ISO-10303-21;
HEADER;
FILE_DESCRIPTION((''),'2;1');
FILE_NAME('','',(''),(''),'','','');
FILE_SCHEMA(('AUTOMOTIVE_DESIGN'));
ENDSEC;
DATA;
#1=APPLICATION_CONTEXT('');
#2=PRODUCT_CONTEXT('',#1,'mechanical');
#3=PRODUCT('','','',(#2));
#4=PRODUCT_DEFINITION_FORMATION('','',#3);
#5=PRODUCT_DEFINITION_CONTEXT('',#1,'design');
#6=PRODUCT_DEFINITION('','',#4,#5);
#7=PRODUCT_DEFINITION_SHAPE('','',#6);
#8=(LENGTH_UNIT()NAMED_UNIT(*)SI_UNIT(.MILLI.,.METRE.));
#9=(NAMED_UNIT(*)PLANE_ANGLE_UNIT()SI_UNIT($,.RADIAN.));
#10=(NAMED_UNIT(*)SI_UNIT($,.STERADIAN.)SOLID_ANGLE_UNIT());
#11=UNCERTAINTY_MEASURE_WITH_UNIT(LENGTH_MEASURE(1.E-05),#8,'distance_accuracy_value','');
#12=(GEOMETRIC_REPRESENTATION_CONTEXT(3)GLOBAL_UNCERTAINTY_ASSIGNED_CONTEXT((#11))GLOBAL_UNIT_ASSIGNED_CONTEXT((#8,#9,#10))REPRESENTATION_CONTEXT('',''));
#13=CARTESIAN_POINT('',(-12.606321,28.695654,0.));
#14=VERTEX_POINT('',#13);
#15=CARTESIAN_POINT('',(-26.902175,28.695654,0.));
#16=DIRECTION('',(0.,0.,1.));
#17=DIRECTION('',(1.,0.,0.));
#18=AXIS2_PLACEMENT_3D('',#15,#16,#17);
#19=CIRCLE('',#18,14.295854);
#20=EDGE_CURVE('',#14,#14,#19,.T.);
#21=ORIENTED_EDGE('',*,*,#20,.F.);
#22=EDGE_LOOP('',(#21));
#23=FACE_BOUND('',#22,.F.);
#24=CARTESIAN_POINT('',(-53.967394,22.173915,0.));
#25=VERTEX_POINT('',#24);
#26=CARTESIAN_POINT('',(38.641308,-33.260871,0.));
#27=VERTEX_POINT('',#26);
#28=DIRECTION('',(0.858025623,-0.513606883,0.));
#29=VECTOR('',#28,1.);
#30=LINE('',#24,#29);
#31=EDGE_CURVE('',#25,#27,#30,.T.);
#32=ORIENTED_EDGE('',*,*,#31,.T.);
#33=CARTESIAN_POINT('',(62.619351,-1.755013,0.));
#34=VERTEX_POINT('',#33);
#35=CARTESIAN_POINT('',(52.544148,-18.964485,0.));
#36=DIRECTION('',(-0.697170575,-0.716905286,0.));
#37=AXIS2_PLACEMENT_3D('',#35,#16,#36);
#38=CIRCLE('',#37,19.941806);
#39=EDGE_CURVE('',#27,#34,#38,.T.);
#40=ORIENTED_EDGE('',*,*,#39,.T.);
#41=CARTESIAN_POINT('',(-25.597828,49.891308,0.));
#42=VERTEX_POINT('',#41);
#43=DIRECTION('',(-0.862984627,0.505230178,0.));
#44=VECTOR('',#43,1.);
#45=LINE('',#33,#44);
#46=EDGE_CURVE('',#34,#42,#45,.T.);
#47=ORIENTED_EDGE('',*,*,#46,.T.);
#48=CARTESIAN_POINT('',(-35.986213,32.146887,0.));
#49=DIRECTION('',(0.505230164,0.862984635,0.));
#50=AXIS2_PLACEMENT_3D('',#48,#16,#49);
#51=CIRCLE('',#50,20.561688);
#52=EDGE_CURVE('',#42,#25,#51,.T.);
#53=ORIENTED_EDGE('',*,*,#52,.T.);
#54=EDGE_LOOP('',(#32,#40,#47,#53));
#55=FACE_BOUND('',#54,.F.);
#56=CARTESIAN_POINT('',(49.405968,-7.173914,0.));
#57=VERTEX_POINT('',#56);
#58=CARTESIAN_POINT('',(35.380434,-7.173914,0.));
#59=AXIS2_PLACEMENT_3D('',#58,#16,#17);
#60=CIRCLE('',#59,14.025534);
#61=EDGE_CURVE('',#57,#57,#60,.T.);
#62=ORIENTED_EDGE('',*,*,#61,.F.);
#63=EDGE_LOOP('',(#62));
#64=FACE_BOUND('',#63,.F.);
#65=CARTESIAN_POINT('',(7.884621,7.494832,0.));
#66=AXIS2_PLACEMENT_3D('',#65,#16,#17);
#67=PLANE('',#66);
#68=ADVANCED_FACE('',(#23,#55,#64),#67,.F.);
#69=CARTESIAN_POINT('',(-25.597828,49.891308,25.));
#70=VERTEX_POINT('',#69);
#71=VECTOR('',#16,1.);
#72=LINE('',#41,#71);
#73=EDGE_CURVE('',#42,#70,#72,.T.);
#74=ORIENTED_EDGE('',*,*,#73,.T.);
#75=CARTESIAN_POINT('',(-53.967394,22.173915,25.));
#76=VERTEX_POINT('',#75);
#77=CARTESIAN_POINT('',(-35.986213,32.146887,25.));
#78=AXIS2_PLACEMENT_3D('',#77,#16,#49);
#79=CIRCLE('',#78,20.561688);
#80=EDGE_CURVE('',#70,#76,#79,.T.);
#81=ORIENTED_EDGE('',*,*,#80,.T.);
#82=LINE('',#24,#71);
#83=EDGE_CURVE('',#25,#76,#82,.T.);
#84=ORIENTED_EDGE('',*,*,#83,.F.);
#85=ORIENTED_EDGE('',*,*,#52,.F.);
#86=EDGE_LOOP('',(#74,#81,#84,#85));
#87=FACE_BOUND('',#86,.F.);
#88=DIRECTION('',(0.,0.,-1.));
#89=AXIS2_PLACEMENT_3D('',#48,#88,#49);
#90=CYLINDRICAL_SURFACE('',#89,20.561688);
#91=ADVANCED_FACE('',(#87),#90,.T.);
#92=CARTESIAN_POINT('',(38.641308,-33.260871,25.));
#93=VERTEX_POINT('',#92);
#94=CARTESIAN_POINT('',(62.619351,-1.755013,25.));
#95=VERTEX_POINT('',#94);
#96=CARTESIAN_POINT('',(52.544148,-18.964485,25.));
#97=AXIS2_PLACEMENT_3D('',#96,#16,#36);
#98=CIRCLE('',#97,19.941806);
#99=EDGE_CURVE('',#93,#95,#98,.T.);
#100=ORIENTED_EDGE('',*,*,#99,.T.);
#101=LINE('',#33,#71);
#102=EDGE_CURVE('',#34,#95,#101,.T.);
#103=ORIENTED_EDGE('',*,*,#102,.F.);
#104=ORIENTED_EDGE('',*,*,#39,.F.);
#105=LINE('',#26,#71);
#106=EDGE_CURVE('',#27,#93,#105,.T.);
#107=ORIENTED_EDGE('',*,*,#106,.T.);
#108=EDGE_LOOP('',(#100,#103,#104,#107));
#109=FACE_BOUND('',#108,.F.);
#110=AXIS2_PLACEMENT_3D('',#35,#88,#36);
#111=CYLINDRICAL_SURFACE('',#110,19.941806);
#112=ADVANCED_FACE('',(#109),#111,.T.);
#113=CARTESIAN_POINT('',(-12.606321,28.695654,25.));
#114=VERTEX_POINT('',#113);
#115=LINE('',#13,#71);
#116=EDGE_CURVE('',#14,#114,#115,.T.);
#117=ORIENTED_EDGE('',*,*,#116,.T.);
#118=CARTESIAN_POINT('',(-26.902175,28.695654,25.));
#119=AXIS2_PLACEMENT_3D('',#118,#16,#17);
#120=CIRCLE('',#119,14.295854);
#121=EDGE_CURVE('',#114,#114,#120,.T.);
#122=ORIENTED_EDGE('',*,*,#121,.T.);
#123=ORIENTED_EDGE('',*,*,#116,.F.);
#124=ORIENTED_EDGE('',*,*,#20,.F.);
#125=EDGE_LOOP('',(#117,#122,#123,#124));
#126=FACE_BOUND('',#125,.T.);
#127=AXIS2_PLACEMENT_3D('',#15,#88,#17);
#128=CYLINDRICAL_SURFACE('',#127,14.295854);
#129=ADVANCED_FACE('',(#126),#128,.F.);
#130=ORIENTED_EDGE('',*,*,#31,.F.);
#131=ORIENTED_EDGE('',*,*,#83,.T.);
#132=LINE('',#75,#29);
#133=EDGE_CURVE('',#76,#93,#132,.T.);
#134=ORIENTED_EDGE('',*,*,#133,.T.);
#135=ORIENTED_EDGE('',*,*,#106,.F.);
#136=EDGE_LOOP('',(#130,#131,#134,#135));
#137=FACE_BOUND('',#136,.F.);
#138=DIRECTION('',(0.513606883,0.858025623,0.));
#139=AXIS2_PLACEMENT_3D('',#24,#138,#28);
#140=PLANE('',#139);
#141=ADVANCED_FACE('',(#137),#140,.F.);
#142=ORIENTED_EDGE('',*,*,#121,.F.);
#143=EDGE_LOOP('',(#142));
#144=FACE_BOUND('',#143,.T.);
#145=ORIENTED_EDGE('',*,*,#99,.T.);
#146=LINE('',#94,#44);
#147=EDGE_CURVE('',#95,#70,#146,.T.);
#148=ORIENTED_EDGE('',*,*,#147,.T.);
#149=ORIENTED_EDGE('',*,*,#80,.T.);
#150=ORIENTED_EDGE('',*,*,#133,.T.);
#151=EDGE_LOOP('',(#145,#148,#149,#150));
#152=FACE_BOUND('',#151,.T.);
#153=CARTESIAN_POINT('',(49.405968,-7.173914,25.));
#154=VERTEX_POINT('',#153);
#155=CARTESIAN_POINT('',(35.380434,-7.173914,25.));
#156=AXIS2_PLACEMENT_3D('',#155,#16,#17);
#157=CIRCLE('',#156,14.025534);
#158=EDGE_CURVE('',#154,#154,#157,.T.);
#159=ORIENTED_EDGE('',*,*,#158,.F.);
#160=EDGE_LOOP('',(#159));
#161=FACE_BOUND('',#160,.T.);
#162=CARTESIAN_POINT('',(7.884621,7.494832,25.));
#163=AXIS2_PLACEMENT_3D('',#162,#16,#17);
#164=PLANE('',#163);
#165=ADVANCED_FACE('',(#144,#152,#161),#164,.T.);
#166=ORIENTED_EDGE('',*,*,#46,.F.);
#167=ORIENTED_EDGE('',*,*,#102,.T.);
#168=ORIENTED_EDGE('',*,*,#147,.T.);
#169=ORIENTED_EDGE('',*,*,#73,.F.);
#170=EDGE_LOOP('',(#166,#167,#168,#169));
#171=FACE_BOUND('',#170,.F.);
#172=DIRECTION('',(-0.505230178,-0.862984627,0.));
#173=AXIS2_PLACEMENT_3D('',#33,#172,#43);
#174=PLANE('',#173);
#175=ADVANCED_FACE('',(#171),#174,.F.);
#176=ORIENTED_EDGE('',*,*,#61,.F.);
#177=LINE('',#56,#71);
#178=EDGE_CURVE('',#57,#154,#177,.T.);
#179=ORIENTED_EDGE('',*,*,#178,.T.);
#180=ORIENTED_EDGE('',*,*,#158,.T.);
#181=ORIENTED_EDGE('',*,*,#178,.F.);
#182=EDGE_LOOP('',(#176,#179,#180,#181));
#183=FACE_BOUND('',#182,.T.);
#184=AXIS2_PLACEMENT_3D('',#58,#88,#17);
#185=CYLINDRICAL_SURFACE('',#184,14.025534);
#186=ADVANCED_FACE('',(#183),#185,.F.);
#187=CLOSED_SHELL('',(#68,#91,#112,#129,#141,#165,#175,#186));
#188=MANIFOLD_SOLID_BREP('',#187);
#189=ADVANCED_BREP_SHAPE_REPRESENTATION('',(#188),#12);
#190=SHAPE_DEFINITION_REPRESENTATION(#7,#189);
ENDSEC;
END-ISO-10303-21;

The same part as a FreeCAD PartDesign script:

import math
import FreeCAD as App
import Part
import Sketcher

doc = App.newDocument("Part")
body = doc.addObject("PartDesign::Body", "Body")

sketch1 = body.newObject("Sketcher::SketchObject", "Sketch")
sketch1.AttachmentSupport = (doc.getObject("XY_Plane"), [""])
sketch1.MapMode = "FlatFace"
sketch1.addGeometry([
    Part.LineSegment(App.Vector(63, -2, 0), App.Vector(-26, 50, 0)),
    Part.ArcOfCircle(Part.Circle(App.Vector(-36, 32, 0), App.Vector(0, 0, 1), 21), math.radians(60), math.radians(209)),
    Part.LineSegment(App.Vector(-54, 22, 0), App.Vector(39, -33, 0)),
    Part.ArcOfCircle(Part.Circle(App.Vector(53, -19, 0), App.Vector(0, 0, 1), 20), math.radians(-134), math.radians(60)),
    Part.Circle(App.Vector(35, -7, 0), App.Vector(0, 0, 1), 14),
    Part.Circle(App.Vector(-27, 29, 0), App.Vector(0, 0, 1), 14),
], False)
sketch1.addConstraint([
    Sketcher.Constraint("Tangent", 0, 2, 1, 1),
    Sketcher.Constraint("Coincident", 1, 2, 2, 1),
    Sketcher.Constraint("Coincident", 2, 2, 3, 1),
    Sketcher.Constraint("Tangent", 3, 2, 0, 1),
    Sketcher.Constraint("Diameter", 4, 28.051068),
    Sketcher.Constraint("Diameter", 5, 28.591708),
    Sketcher.Constraint("Radius", 1, 20.561688),
    Sketcher.Constraint("Radius", 3, 19.941806),
    Sketcher.Constraint("DistanceY", 4, 3, 1, 3, 39.320801),
    Sketcher.Constraint("DistanceY", 3, 3, 1, 2, 41.1384),
    Sketcher.Constraint("DistanceY", 4, 3, 3, 2, 5.418901),
    Sketcher.Constraint("Distance", 0, 102.223349),
    Sketcher.Constraint("DistanceX", -1, 1, 3, 3, 52.544148),
    Sketcher.Constraint("DistanceY", -1, 1, 0, 2, 49.891308),
    Sketcher.Constraint("DistanceX", -1, 1, 2, 2, 38.641308),
    Sketcher.Constraint("DistanceX", 1, 3, 5, 3, 9.084038),
    Sketcher.Constraint("DistanceX", 5, 3, 4, 3, 62.282609),
    Sketcher.Constraint("DistanceY", 3, 3, 5, 3, 47.660139),
])
pad1 = body.newObject("PartDesign::Pad", "Pad")
pad1.Profile = sketch1
pad1.Length = 25

doc.recompute()
